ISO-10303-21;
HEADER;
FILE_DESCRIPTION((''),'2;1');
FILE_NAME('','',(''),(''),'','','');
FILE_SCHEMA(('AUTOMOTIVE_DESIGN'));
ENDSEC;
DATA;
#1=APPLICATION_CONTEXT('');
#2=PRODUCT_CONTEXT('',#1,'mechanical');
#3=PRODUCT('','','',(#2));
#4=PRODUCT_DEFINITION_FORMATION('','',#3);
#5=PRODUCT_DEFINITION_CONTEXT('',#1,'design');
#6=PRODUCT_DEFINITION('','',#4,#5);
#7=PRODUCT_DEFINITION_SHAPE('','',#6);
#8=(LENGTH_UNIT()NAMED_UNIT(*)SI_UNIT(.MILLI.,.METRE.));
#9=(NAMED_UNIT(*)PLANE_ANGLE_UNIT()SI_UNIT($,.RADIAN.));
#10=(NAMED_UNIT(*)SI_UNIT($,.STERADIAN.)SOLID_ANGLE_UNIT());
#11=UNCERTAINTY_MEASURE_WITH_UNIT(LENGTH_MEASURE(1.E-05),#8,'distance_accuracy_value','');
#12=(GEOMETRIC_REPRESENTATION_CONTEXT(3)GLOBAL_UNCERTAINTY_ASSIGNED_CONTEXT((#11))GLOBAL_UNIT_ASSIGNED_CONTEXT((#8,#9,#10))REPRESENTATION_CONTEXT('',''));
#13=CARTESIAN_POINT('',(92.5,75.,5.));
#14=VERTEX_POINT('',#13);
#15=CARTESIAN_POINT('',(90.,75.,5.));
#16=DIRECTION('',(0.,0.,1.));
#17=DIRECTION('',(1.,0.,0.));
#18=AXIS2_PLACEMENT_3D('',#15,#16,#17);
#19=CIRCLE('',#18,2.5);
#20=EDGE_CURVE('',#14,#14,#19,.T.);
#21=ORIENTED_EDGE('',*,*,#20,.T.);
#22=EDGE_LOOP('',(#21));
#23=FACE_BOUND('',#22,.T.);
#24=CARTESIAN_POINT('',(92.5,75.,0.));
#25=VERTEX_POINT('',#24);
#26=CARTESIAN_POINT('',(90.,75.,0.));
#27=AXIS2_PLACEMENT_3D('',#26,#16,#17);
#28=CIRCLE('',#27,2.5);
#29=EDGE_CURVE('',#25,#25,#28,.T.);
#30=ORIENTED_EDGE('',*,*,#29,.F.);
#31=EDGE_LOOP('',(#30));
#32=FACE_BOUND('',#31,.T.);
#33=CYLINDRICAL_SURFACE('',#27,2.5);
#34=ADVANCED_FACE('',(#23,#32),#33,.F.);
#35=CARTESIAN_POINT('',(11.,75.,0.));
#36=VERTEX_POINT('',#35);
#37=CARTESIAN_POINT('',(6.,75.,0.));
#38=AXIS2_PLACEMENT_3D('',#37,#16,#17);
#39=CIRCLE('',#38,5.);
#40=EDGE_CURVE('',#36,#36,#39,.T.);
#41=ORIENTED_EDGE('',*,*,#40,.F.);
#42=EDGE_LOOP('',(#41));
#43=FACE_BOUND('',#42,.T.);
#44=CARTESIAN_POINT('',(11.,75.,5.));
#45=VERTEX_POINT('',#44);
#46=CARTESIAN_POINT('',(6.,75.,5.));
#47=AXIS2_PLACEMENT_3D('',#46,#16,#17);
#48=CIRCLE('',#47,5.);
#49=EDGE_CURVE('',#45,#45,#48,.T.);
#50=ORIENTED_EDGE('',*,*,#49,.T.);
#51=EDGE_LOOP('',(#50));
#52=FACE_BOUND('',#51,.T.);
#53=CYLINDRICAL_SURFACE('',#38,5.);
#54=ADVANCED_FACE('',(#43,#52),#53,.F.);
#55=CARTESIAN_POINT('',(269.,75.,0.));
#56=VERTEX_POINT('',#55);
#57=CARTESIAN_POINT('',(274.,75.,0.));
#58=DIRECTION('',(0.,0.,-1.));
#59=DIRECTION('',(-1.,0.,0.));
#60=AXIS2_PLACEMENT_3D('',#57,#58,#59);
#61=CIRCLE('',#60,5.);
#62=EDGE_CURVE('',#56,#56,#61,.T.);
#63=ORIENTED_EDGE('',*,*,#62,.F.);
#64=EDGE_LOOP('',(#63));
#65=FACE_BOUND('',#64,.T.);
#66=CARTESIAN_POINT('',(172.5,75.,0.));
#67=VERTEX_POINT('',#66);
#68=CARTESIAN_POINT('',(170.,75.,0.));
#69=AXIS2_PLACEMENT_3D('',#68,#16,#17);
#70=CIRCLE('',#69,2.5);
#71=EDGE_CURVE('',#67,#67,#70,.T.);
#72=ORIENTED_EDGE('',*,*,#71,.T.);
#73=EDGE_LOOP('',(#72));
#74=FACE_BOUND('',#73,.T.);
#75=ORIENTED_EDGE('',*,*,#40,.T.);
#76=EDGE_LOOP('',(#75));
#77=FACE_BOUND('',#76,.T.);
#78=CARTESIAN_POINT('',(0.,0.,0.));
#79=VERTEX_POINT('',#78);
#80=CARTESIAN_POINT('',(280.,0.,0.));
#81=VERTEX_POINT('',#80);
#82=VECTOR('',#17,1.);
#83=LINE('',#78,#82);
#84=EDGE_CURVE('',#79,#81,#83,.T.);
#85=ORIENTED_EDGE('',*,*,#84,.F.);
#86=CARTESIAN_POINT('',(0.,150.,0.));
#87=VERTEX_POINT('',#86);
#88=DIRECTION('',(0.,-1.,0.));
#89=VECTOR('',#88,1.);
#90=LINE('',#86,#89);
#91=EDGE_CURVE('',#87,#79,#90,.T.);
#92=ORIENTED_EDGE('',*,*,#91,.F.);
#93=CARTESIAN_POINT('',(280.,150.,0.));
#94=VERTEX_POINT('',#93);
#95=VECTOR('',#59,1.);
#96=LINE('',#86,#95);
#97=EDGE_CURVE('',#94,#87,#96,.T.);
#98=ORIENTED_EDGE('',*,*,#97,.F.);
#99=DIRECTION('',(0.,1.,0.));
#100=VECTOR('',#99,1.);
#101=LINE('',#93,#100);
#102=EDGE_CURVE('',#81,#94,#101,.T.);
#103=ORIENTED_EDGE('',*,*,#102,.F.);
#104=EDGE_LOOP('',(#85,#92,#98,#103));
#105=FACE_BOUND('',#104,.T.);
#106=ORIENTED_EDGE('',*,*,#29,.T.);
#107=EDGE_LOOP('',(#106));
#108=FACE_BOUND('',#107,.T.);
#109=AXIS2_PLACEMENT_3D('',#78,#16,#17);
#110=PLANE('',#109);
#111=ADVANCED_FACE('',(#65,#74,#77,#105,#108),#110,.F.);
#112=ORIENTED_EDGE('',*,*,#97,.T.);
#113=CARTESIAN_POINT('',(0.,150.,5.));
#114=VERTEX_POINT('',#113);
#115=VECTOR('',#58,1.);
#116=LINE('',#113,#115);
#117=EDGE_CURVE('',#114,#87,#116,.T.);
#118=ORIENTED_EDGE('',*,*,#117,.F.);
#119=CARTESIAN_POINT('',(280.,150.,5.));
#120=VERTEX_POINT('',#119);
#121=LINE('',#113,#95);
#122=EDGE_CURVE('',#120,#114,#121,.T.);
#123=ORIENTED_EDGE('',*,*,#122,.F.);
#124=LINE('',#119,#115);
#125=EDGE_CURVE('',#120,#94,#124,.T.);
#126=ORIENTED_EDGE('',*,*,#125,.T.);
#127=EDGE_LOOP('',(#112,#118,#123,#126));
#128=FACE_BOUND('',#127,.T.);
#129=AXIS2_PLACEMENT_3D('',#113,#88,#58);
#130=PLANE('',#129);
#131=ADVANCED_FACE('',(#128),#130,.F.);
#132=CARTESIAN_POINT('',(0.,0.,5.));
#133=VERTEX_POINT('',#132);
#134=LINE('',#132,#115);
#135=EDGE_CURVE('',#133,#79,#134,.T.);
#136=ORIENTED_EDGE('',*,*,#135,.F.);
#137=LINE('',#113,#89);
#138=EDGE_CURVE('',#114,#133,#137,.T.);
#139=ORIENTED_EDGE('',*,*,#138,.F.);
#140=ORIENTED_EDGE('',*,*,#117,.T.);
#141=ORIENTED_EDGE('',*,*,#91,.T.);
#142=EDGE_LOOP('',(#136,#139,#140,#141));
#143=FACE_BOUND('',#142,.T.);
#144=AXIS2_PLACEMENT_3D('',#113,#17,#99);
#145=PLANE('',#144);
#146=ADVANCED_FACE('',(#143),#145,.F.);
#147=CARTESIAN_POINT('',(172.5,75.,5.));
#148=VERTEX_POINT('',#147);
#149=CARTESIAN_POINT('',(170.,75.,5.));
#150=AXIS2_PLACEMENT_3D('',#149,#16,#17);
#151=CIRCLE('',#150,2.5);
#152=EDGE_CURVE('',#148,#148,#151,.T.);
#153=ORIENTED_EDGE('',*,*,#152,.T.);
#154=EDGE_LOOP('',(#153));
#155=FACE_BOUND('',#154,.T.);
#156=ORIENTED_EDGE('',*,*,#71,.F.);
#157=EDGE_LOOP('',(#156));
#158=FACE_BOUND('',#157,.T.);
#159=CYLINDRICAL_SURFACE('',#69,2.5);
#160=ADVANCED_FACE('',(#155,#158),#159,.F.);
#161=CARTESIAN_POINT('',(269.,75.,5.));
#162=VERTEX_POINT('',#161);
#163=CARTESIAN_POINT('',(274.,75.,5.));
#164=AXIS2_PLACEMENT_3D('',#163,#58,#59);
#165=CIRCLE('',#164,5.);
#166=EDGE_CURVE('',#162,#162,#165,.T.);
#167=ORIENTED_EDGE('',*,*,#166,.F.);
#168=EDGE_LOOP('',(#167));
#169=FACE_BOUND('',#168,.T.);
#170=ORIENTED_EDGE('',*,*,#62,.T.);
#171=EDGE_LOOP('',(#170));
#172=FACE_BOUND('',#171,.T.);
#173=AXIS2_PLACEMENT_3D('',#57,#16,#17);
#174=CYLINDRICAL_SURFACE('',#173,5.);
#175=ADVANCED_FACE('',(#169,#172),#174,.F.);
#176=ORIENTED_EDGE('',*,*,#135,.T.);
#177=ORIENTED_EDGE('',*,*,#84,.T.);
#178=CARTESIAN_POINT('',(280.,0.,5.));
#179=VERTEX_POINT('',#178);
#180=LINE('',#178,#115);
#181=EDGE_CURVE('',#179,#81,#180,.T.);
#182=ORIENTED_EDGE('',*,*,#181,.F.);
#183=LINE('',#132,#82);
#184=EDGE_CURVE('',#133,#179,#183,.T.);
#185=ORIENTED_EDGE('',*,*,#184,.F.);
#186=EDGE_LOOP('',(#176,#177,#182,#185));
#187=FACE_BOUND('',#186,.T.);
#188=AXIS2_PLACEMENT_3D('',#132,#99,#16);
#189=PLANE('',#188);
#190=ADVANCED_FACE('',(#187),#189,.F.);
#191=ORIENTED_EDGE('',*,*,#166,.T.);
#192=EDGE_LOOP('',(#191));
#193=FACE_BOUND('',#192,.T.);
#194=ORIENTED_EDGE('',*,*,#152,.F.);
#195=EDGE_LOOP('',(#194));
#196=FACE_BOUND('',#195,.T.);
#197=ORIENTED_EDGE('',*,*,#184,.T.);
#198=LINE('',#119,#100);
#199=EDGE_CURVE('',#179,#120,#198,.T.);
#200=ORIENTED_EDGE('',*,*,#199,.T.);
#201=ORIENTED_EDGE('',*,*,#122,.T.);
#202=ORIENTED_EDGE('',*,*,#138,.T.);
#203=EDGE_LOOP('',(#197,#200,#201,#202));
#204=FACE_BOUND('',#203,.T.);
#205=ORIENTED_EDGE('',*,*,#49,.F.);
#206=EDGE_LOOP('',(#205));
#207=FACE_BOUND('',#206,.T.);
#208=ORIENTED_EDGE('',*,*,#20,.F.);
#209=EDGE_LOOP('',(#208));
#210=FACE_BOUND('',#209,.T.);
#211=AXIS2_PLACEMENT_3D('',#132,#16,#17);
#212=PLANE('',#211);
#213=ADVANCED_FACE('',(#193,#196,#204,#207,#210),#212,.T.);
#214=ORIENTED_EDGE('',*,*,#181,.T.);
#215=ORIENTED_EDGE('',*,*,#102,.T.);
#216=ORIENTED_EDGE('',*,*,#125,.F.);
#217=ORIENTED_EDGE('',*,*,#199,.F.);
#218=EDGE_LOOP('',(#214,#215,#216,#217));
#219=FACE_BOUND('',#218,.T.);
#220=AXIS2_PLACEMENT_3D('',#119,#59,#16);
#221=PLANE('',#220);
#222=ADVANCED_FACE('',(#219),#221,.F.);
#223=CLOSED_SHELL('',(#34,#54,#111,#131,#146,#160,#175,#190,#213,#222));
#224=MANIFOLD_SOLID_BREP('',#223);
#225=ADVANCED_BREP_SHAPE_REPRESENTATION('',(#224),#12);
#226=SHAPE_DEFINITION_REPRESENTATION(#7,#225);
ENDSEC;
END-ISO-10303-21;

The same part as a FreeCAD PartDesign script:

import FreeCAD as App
import Part
import Sketcher

doc = App.newDocument("Part")
body = doc.addObject("PartDesign::Body", "Body")

# Sketch on XY plane
sketch1 = body.newObject("Sketcher::SketchObject", "Sketch")
sketch1.AttachmentSupport = (doc.getObject("XY_Plane"), [""])
sketch1.MapMode = "FlatFace"
sketch1.addGeometry([
    Part.LineSegment(App.Vector(0, 150, 0), App.Vector(0, 0, 0)),
    Part.LineSegment(App.Vector(0, 0, 0), App.Vector(280, 0, 0)),
    Part.LineSegment(App.Vector(280, 0, 0), App.Vector(280, 150, 0)),
    Part.LineSegment(App.Vector(280, 150, 0), App.Vector(0, 150, 0)),
], False)
sketch1.addConstraint([
    Sketcher.Constraint("Coincident", 0, 2, 1, 1),
    Sketcher.Constraint("Coincident", 1, 2, 2, 1),
    Sketcher.Constraint("Coincident", 2, 2, 3, 1),
    Sketcher.Constraint("Coincident", 3, 2, 0, 1),
    Sketcher.Constraint("Vertical", 0),
    Sketcher.Constraint("Horizontal", 1),
    Sketcher.Constraint("Vertical", 2),
    Sketcher.Constraint("Horizontal", 3),
    Sketcher.Constraint("Coincident", 0, 2, -1, 1),
    Sketcher.Constraint("DistanceX", 1, 1, 1, 2, 280.0),
    Sketcher.Constraint("DistanceY", 0, 2, 0, 1, 150.0),
])
pad1 = body.newObject("PartDesign::Pad", "Pad")
pad1.Profile = sketch1
pad1.Length = 5

# Sketch on XY plane
sketch2 = body.newObject("Sketcher::SketchObject", "Sketch001")
sketch2.AttachmentSupport = (doc.getObject("XY_Plane"), [""])
sketch2.MapMode = "FlatFace"
sketch2.AttachmentOffset = App.Placement(App.Vector(0, 0, 5), App.Rotation())
sketch2.addGeometry([
    Part.Circle(App.Vector(90, 75, 0), App.Vector(0, 0, 1), 2.5),
    Part.Circle(App.Vector(170, 75, 0), App.Vector(0, 0, 1), 2.5),
], False)
sketch2.addConstraint([
    Sketcher.Constraint("Equal", 0, 1),
    Sketcher.Constraint("Horizontal", 0, 3, 1, 3),
    Sketcher.Constraint("Diameter", 0, 5.0),
    Sketcher.Constraint("DistanceX", -1, 1, 0, 3, 90.0),
    Sketcher.Constraint("DistanceY", -1, 1, 0, 3, 75.0),
    Sketcher.Constraint("DistanceX", -1, 1, 1, 3, 170.0),
])
pocket1 = body.newObject("PartDesign::Pocket", "Pocket")
pocket1.Profile = sketch2
pocket1.Length = 5

# Sketch on XY plane
sketch3 = body.newObject("Sketcher::SketchObject", "Sketch002")
sketch3.AttachmentSupport = (doc.getObject("XY_Plane"), [""])
sketch3.MapMode = "FlatFace"
sketch3.AttachmentOffset = App.Placement(App.Vector(0, 0, 5), App.Rotation())
sketch3.addGeometry(Part.Circle(App.Vector(6, 75, 0), App.Vector(0, 0, 1), 5), False)
sketch3.addConstraint([
    Sketcher.Constraint("Diameter", 0, 10.0),
    Sketcher.Constraint("DistanceX", -1, 1, 0, 3, 6.0),
    Sketcher.Constraint("DistanceY", -1, 1, 0, 3, 75.0),
])
pocket2 = body.newObject("PartDesign::Pocket", "Pocket001")
pocket2.Profile = sketch3
pocket2.Type = "ThroughAll"
doc.recompute()

datumplane = body.newObject("PartDesign::Plane", "DatumPlane")
datumplane.AttachmentSupport = (doc.getObject("YZ_Plane"), [""])
datumplane.MapMode = "FlatFace"
datumplane.AttachmentOffset = App.Placement(App.Vector(0, 0, 140), App.Rotation())
mirrored = body.newObject("PartDesign::Mirrored", "Mirrored")
mirrored.Originals = [pocket2]
mirrored.MirrorPlane = (datumplane, [""])
body.Tip = mirrored

doc.recompute()
